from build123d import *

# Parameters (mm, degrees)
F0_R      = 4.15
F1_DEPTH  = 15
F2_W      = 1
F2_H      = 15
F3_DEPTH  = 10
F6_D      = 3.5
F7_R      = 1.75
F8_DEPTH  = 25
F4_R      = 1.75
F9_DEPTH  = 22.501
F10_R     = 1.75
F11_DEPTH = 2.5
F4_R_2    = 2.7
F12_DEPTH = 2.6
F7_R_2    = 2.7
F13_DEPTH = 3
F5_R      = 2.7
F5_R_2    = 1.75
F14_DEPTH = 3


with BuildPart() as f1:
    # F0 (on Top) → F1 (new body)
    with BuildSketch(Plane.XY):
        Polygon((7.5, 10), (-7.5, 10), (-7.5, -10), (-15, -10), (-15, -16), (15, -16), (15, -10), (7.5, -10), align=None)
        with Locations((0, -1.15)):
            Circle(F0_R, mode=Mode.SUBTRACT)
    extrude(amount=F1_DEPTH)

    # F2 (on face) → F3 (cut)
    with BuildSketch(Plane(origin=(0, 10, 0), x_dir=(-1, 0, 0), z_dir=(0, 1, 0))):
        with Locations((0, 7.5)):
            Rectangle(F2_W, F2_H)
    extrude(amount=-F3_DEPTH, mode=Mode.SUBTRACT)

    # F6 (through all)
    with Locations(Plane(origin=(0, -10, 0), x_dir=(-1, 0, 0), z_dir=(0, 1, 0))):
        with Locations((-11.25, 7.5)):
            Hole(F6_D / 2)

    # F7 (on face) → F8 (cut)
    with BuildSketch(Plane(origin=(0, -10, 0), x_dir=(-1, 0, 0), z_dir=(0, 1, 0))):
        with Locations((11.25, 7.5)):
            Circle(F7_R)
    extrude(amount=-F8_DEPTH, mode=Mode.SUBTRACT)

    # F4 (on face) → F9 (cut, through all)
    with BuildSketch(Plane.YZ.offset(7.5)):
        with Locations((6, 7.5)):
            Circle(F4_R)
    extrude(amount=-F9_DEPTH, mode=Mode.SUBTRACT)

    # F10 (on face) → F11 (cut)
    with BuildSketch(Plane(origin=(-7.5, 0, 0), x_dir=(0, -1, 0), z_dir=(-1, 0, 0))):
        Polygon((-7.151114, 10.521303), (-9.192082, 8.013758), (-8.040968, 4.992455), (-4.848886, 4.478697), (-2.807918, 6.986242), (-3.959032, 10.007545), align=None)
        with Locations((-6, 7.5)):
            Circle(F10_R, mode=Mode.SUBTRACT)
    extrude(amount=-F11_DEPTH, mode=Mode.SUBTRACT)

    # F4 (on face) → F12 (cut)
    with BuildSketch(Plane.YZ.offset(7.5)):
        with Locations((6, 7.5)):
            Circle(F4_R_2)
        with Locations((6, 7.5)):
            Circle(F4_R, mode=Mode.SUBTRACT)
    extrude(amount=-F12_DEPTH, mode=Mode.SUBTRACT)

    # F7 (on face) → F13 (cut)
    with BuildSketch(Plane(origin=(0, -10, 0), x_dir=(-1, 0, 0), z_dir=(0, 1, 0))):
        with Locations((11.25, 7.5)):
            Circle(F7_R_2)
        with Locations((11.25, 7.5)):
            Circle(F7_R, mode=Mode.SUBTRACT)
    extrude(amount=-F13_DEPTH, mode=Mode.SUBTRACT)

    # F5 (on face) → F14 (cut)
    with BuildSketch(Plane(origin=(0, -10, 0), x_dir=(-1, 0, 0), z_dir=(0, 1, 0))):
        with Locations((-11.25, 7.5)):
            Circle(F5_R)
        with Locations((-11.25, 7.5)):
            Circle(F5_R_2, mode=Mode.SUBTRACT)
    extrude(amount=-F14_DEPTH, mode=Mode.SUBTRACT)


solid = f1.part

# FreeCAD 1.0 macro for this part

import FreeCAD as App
import Part
import Sketcher
from FreeCAD import Vector

doc = App.newDocument("Part")
body = doc.addObject("PartDesign::Body", "Body")

# Sketch on XY plane
sketch1 = body.newObject("Sketcher::SketchObject", "Sketch")
sketch1.AttachmentSupport = (doc.getObject("XY_Plane"), [""])
sketch1.MapMode = "FlatFace"
sketch1.addGeometry(Part.LineSegment(Vector(7.5, 10, 0), Vector(-7.5, 10, 0)), False)
sketch1.addGeometry(Part.LineSegment(Vector(-7.5, 10, 0), Vector(-7.5, -10, 0)), False)
sketch1.addGeometry(Part.LineSegment(Vector(-7.5, -10, 0), Vector(-15, -10, 0)), False)
sketch1.addGeometry(Part.LineSegment(Vector(-15, -10, 0), Vector(-15, -16, 0)), False)
sketch1.addGeometry(Part.LineSegment(Vector(-15, -16, 0), Vector(15, -16, 0)), False)
sketch1.addGeometry(Part.LineSegment(Vector(15, -16, 0), Vector(15, -10, 0)), False)
sketch1.addGeometry(Part.LineSegment(Vector(15, -10, 0), Vector(7.5, -10, 0)), False)
sketch1.addGeometry(Part.LineSegment(Vector(7.5, -10, 0), Vector(7.5, 10, 0)), False)
sketch1.addGeometry(Part.Circle(Vector(0, -1.1, 0), Vector(0, 0, 1), 4.2), False)
sketch1.addConstraint(Sketcher.Constraint("Coincident", 0, 2, 1, 1))
sketch1.addConstraint(Sketcher.Constraint("Coincident", 1, 2, 2, 1))
sketch1.addConstraint(Sketcher.Constraint("Coincident", 2, 2, 3, 1))
sketch1.addConstraint(Sketcher.Constraint("Coincident", 3, 2, 4, 1))
sketch1.addConstraint(Sketcher.Constraint("Coincident", 4, 2, 5, 1))
sketch1.addConstraint(Sketcher.Constraint("Coincident", 5, 2, 6, 1))
sketch1.addConstraint(Sketcher.Constraint("Coincident", 6, 2, 7, 1))
sketch1.addConstraint(Sketcher.Constraint("Coincident", 7, 2, 0, 1))
sketch1.addConstraint(Sketcher.Constraint("Horizontal", 0))
sketch1.addConstraint(Sketcher.Constraint("Vertical", 1))
sketch1.addConstraint(Sketcher.Constraint("Horizontal", 2))
sketch1.addConstraint(Sketcher.Constraint("Vertical", 3))
sketch1.addConstraint(Sketcher.Constraint("Horizontal", 4))
sketch1.addConstraint(Sketcher.Constraint("Vertical", 5))
sketch1.addConstraint(Sketcher.Constraint("Horizontal", 6))
sketch1.addConstraint(Sketcher.Constraint("Vertical", 7))
sketch1.addConstraint(Sketcher.Constraint("Symmetric", 0, 2, 6, 2, -1, 1))
sketch1.addConstraint(Sketcher.Constraint("Symmetric", 2, 2, 5, 2, -2))
sketch1.addConstraint(Sketcher.Constraint("PointOnObject", 8, 3, -2))
sketch1.addConstraint(Sketcher.Constraint("Diameter", 8, 8.3))
sketch1.addConstraint(Sketcher.Constraint("DistanceX", 0, 2, 0, 1, 15.0))
sketch1.addConstraint(Sketcher.Constraint("DistanceX", 4, 1, 4, 2, 30.0))
sketch1.addConstraint(Sketcher.Constraint("DistanceY", 1, 2, 1, 1, 20.0))
sketch1.addConstraint(Sketcher.Constraint("DistanceY", 3, 2, 3, 1, 6.0))
sketch1.addConstraint(Sketcher.Constraint("DistanceY", 8, 3, -1, 1, 1.15))
pad1 = body.newObject("PartDesign::Pad", "Pad")
pad1.Profile = sketch1
pad1.Length = 15

# Sketch on XZ plane
sketch2 = body.newObject("Sketcher::SketchObject", "Sketch001")
sketch2.AttachmentSupport = (doc.getObject("XZ_Plane"), [""])
sketch2.MapMode = "FlatFace"
sketch2.AttachmentOffset = App.Placement(Vector(0, 0, -10), App.Rotation())
sketch2.addGeometry(Part.LineSegment(Vector(0.5, 15, 0), Vector(0.5, 0, 0)), False)
sketch2.addGeometry(Part.LineSegment(Vector(0.5, 0, 0), Vector(-0.5, 0, 0)), False)
sketch2.addGeometry(Part.LineSegment(Vector(-0.5, 0, 0), Vector(-0.5, 15, 0)), False)
sketch2.addGeometry(Part.LineSegment(Vector(-0.5, 15, 0), Vector(0.5, 15, 0)), False)
sketch2.addConstraint(Sketcher.Constraint("Coincident", 0, 2, 1, 1))
sketch2.addConstraint(Sketcher.Constraint("Coincident", 1, 2, 2, 1))
sketch2.addConstraint(Sketcher.Constraint("Coincident", 2, 2, 3, 1))
sketch2.addConstraint(Sketcher.Constraint("Coincident", 3, 2, 0, 1))
sketch2.addConstraint(Sketcher.Constraint("Vertical", 0))
sketch2.addConstraint(Sketcher.Constraint("Horizontal", 1))
sketch2.addConstraint(Sketcher.Constraint("Vertical", 2))
sketch2.addConstraint(Sketcher.Constraint("Horizontal", 3))
sketch2.addConstraint(Sketcher.Constraint("Symmetric", 0, 2, 1, 2, -1, 1))
sketch2.addConstraint(Sketcher.Constraint("DistanceX", 1, 2, 1, 1, 1.0))
sketch2.addConstraint(Sketcher.Constraint("DistanceY", 0, 2, 0, 1, 15.0))
pocket1 = body.newObject("PartDesign::Pocket", "Pocket")
pocket1.Profile = sketch2
pocket1.Length = 10
pocket1.Reversed = True

# Sketch on XZ plane
sketch3 = body.newObject("Sketcher::SketchObject", "Sketch002")
sketch3.AttachmentSupport = (doc.getObject("XZ_Plane"), [""])
sketch3.MapMode = "FlatFace"
sketch3.AttachmentOffset = App.Placement(Vector(0, 0, 10), App.Rotation())
sketch3.addGeometry(Part.Circle(Vector(11.2, 7.5, 0), Vector(0, 0, 1), 1.8), False)
sketch3.addConstraint(Sketcher.Constraint("Diameter", 0, 3.5))
sketch3.addConstraint(Sketcher.Constraint("DistanceY", -1, 1, 0, 3, 7.5))
sketch3.addConstraint(Sketcher.Constraint("DistanceX", -1, 1, 0, 3, 11.25))
doc.recompute()
hole = body.newObject("PartDesign::Hole", "Hole")
hole.Profile = sketch3
hole.ThreadType = "None"
hole.Diameter = 3.5
hole.DepthType = "ThroughAll"
hole.Reversed = True

# Sketch on XZ plane
sketch4 = body.newObject("Sketcher::SketchObject", "Sketch003")
sketch4.AttachmentSupport = (doc.getObject("XZ_Plane"), [""])
sketch4.MapMode = "FlatFace"
sketch4.AttachmentOffset = App.Placement(Vector(0, 0, 10), App.Rotation())
sketch4.addGeometry(Part.Circle(Vector(-11.2, 7.5, 0), Vector(0, 0, 1), 1.8), False)
sketch4.addConstraint(Sketcher.Constraint("Diameter", 0, 3.5))
sketch4.addConstraint(Sketcher.Constraint("DistanceY", -1, 1, 0, 3, 7.5))
sketch4.addConstraint(Sketcher.Constraint("DistanceX", 0, 3, -1, 1, 11.25))
pocket2 = body.newObject("PartDesign::Pocket", "Pocket001")
pocket2.Profile = sketch4
pocket2.Length = 25
pocket2.Reversed = True

# Sketch on YZ plane
sketch5 = body.newObject("Sketcher::SketchObject", "Sketch004")
sketch5.AttachmentSupport = (doc.getObject("YZ_Plane"), [""])
sketch5.MapMode = "FlatFace"
sketch5.AttachmentOffset = App.Placement(Vector(0, 0, 7.5), App.Rotation())
sketch5.addGeometry(Part.Circle(Vector(6, 7.5, 0), Vector(0, 0, 1), 1.8), False)
sketch5.addConstraint(Sketcher.Constraint("Diameter", 0, 3.5))
sketch5.addConstraint(Sketcher.Constraint("DistanceX", -1, 1, 0, 3, 6.0))
sketch5.addConstraint(Sketcher.Constraint("DistanceY", -1, 1, 0, 3, 7.5))
pocket3 = body.newObject("PartDesign::Pocket", "Pocket002")
pocket3.Profile = sketch5
pocket3.Type = "ThroughAll"

# Sketch on YZ plane
sketch6 = body.newObject("Sketcher::SketchObject", "Sketch005")
sketch6.AttachmentSupport = (doc.getObject("YZ_Plane"), [""])
sketch6.MapMode = "FlatFace"
sketch6.AttachmentOffset = App.Placement(Vector(0, 0, -7.5), App.Rotation())
sketch6.addGeometry(Part.LineSegment(Vector(7.2, 10.5, 0), Vector(9.2, 8, 0)), False)
sketch6.addGeometry(Part.LineSegment(Vector(9.2, 8, 0), Vector(8, 5, 0)), False)
sketch6.addGeometry(Part.LineSegment(Vector(8, 5, 0), Vector(4.8, 4.5, 0)), False)
sketch6.addGeometry(Part.LineSegment(Vector(4.8, 4.5, 0), Vector(2.8, 7, 0)), False)
sketch6.addGeometry(Part.LineSegment(Vector(2.8, 7, 0), Vector(4, 10, 0)), False)
sketch6.addGeometry(Part.LineSegment(Vector(4, 10, 0), Vector(7.2, 10.5, 0)), False)
sketch6.addGeometry(Part.Circle(Vector(6, 7.5, 0), Vector(0, 0, 1), 1.8), False)
sketch6.addConstraint(Sketcher.Constraint("Coincident", 0, 2, 1, 1))
sketch6.addConstraint(Sketcher.Constraint("Coincident", 1, 2, 2, 1))
sketch6.addConstraint(Sketcher.Constraint("Coincident", 2, 2, 3, 1))
sketch6.addConstraint(Sketcher.Constraint("Coincident", 3, 2, 4, 1))
sketch6.addConstraint(Sketcher.Constraint("Coincident", 4, 2, 5, 1))
sketch6.addConstraint(Sketcher.Constraint("Coincident", 5, 2, 0, 1))
sketch6.addConstraint(Sketcher.Constraint("Parallel", 0, 3))
sketch6.addConstraint(Sketcher.Constraint("Parallel", 1, 4))
sketch6.addConstraint(Sketcher.Constraint("Parallel", 2, 5))
sketch6.addConstraint(Sketcher.Constraint("Equal", 0, 1))
sketch6.addConstraint(Sketcher.Constraint("Equal", 1, 2))
sketch6.addConstraint(Sketcher.Constraint("Equal", 2, 3))
sketch6.addConstraint(Sketcher.Constraint("Diameter", 6, 3.5))
sketch6.addConstraint(Sketcher.Constraint("DistanceX", -1, 1, 6, 3, 6.0))
sketch6.addConstraint(Sketcher.Constraint("DistanceY", -1, 1, 6, 3, 7.5))
sketch6.addConstraint(Sketcher.Constraint("Distance", 0, 3.233161))
sketch6.addConstraint(Sketcher.Constraint("DistanceX", -1, 1, 0, 2, 9.192082))
sketch6.addConstraint(Sketcher.Constraint("DistanceX", 2, 2, 1, 2, 3.192082))
sketch6.addConstraint(Sketcher.Constraint("DistanceY", 2, 2, 0, 2, 3.535061))
sketch6.addConstraint(Sketcher.Constraint("DistanceX", 3, 2, 2, 2, 2.040968))
sketch6.addConstraint(Sketcher.Constraint("DistanceY", 3, 2, 6, 3, 0.513758))
pocket4 = body.newObject("PartDesign::Pocket", "Pocket003")
pocket4.Profile = sketch6
pocket4.Length = 2.5
pocket4.Reversed = True

# Sketch on YZ plane
sketch7 = body.newObject("Sketcher::SketchObject", "Sketch006")
sketch7.AttachmentSupport = (doc.getObject("YZ_Plane"), [""])
sketch7.MapMode = "FlatFace"
sketch7.AttachmentOffset = App.Placement(Vector(0, 0, 7.5), App.Rotation())
sketch7.addGeometry(Part.Circle(Vector(6, 7.5, 0), Vector(0, 0, 1), 2.7), False)
sketch7.addGeometry(Part.Circle(Vector(6, 7.5, 0), Vector(0, 0, 1), 1.8), False)
sketch7.addConstraint(Sketcher.Constraint("Coincident", 1, 3, 0, 3))
sketch7.addConstraint(Sketcher.Constraint("Diameter", 0, 5.4))
sketch7.addConstraint(Sketcher.Constraint("Diameter", 1, 3.5))
sketch7.addConstraint(Sketcher.Constraint("DistanceX", -1, 1, 0, 3, 6.0))
sketch7.addConstraint(Sketcher.Constraint("DistanceY", -1, 1, 0, 3, 7.5))
pocket5 = body.newObject("PartDesign::Pocket", "Pocket004")
pocket5.Profile = sketch7
pocket5.Length = 2.6

# Sketch on XZ plane
sketch8 = body.newObject("Sketcher::SketchObject", "Sketch007")
sketch8.AttachmentSupport = (doc.getObject("XZ_Plane"), [""])
sketch8.MapMode = "FlatFace"
sketch8.AttachmentOffset = App.Placement(Vector(0, 0, 10), App.Rotation())
sketch8.addGeometry(Part.Circle(Vector(-11.2, 7.5, 0), Vector(0, 0, 1), 2.7), False)
sketch8.addGeometry(Part.Circle(Vector(-11.2, 7.5, 0), Vector(0, 0, 1), 1.8), False)
sketch8.addConstraint(Sketcher.Constraint("Coincident", 1, 3, 0, 3))
sketch8.addConstraint(Sketcher.Constraint("Diameter", 0, 5.4))
sketch8.addConstraint(Sketcher.Constraint("Diameter", 1, 3.5))
sketch8.addConstraint(Sketcher.Constraint("DistanceY", -1, 1, 0, 3, 7.5))
sketch8.addConstraint(Sketcher.Constraint("DistanceX", 0, 3, -1, 1, 11.25))
pocket6 = body.newObject("PartDesign::Pocket", "Pocket005")
pocket6.Profile = sketch8
pocket6.Length = 3
pocket6.Reversed = True

# Sketch on XZ plane
sketch9 = body.newObject("Sketcher::SketchObject", "Sketch008")
sketch9.AttachmentSupport = (doc.getObject("XZ_Plane"), [""])
sketch9.MapMode = "FlatFace"
sketch9.AttachmentOffset = App.Placement(Vector(0, 0, 10), App.Rotation())
sketch9.addGeometry(Part.Circle(Vector(11.2, 7.5, 0), Vector(0, 0, 1), 2.7), False)
sketch9.addGeometry(Part.Circle(Vector(11.2, 7.5, 0), Vector(0, 0, 1), 1.8), False)
sketch9.addConstraint(Sketcher.Constraint("Coincident", 1, 3, 0, 3))
sketch9.addConstraint(Sketcher.Constraint("Diameter", 0, 5.4))
sketch9.addConstraint(Sketcher.Constraint("Diameter", 1, 3.5))
sketch9.addConstraint(Sketcher.Constraint("DistanceY", -1, 1, 0, 3, 7.5))
sketch9.addConstraint(Sketcher.Constraint("DistanceX", -1, 1, 0, 3, 11.25))
pocket7 = body.newObject("PartDesign::Pocket", "Pocket006")
pocket7.Profile = sketch9
pocket7.Length = 3
pocket7.Reversed = True

doc.recompute()
